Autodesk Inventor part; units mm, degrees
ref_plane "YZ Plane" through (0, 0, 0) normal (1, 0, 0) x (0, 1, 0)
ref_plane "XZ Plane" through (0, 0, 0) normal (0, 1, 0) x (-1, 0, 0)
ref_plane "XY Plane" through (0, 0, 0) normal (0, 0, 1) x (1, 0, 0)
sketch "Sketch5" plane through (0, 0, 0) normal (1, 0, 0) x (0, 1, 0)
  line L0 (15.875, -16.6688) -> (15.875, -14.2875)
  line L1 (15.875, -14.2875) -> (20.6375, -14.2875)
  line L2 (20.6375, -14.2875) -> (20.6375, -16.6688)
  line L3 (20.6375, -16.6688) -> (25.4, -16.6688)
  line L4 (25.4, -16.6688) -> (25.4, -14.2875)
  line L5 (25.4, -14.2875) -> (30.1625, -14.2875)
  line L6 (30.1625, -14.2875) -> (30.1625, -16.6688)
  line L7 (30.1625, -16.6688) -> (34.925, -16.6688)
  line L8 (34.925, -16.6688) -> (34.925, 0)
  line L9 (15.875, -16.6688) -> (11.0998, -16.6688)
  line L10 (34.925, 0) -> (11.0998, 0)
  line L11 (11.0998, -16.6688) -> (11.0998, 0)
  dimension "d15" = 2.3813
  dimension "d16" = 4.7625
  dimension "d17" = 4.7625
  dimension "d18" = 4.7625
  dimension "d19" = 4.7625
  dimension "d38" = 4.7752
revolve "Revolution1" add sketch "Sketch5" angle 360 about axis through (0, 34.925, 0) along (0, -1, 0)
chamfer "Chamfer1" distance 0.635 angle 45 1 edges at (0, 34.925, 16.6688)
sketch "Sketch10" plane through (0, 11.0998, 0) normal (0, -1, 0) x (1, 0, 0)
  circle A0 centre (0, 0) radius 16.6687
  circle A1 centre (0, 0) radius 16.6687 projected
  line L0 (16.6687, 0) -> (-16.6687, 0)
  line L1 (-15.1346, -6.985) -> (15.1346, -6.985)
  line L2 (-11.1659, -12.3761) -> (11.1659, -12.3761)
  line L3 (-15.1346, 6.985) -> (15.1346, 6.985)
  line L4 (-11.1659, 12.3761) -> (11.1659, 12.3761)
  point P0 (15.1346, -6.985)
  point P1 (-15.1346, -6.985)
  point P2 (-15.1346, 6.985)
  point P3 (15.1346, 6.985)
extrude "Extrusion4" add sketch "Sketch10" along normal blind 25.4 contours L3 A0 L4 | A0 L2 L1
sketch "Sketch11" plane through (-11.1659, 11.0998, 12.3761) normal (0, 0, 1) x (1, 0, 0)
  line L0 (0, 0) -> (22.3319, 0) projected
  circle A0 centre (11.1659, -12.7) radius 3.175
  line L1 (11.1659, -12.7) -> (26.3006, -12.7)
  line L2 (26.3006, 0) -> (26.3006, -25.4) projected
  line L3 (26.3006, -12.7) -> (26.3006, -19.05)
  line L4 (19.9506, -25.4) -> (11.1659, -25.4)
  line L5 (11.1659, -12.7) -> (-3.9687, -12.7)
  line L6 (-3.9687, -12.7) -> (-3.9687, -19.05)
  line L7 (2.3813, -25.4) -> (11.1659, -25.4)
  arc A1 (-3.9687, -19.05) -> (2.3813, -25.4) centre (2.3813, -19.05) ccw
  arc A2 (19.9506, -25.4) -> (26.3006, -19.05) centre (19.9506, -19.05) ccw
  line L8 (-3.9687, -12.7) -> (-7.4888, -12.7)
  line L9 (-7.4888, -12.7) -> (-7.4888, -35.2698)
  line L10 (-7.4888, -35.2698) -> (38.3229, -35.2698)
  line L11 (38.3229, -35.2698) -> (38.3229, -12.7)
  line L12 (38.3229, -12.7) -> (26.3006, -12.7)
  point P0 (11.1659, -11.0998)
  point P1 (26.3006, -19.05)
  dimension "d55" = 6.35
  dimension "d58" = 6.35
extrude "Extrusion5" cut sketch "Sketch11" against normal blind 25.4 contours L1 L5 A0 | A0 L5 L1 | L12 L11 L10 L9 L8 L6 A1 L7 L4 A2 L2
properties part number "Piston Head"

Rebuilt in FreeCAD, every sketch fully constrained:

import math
import FreeCAD as App
import Part
import Sketcher
from FreeCAD import Vector
Q = App.Units.Quantity


def edges_at(feature, points):
    """Names of the edges that pass closest to the given points."""
    edges = feature.Shape.Edges
    near = lambda p: min(range(len(edges)), key=lambda i: edges[i].distToShape(Part.Vertex(*p))[0])
    return sorted({f"Edge{near(p) + 1}" for p in points})

doc = App.newDocument("Part")
body = doc.addObject("PartDesign::Body", "Body")

sketch1 = body.newObject("Sketcher::SketchObject", "Sketch")
sketch1.AttachmentSupport = (doc.getObject("YZ_Plane"), [""])
sketch1.MapMode = "FlatFace"
sketch1.addGeometry([
    Part.LineSegment(Vector(11.0998, -16.6688, 0), Vector(15.875, -16.6688, 0)),
    Part.LineSegment(Vector(15.875, -16.6688, 0), Vector(15.875, -14.2875, 0)),
    Part.LineSegment(Vector(15.875, -14.2875, 0), Vector(20.6375, -14.2875, 0)),
    Part.LineSegment(Vector(20.6375, -14.2875, 0), Vector(20.6375, -16.6688, 0)),
    Part.LineSegment(Vector(20.6375, -16.6688, 0), Vector(25.4, -16.6688, 0)),
    Part.LineSegment(Vector(25.4, -16.6688, 0), Vector(25.4, -14.2875, 0)),
    Part.LineSegment(Vector(25.4, -14.2875, 0), Vector(30.1625, -14.2875, 0)),
    Part.LineSegment(Vector(30.1625, -14.2875, 0), Vector(30.1625, -16.6688, 0)),
    Part.LineSegment(Vector(30.1625, -16.6688, 0), Vector(34.925, -16.6688, 0)),
    Part.LineSegment(Vector(34.925, -16.6688, 0), Vector(34.925, 0, 0)),
    Part.LineSegment(Vector(34.925, 0, 0), Vector(11.0998, 0, 0)),
    Part.LineSegment(Vector(11.0998, 0, 0), Vector(11.0998, -16.6688, 0)),
], False)
sketch1.addConstraint([
    Sketcher.Constraint("Coincident", 0, 2, 1, 1),
    Sketcher.Constraint("Coincident", 1, 2, 2, 1),
    Sketcher.Constraint("Coincident", 2, 2, 3, 1),
    Sketcher.Constraint("Coincident", 3, 2, 4, 1),
    Sketcher.Constraint("Coincident", 4, 2, 5, 1),
    Sketcher.Constraint("Coincident", 5, 2, 6, 1),
    Sketcher.Constraint("Coincident", 6, 2, 7, 1),
    Sketcher.Constraint("Coincident", 7, 2, 8, 1),
    Sketcher.Constraint("Coincident", 8, 2, 9, 1),
    Sketcher.Constraint("Coincident", 9, 2, 10, 1),
    Sketcher.Constraint("Coincident", 10, 2, 11, 1),
    Sketcher.Constraint("Coincident", 11, 2, 0, 1),
    Sketcher.Constraint("Horizontal", 0),
    Sketcher.Constraint("Vertical", 1),
    Sketcher.Constraint("Horizontal", 2),
    Sketcher.Constraint("Vertical", 3),
    Sketcher.Constraint("Horizontal", 4),
    Sketcher.Constraint("Vertical", 5),
    Sketcher.Constraint("Horizontal", 6),
    Sketcher.Constraint("Vertical", 7),
    Sketcher.Constraint("Horizontal", 8),
    Sketcher.Constraint("Vertical", 9),
    Sketcher.Constraint("Horizontal", 10),
    Sketcher.Constraint("Vertical", 11),
    Sketcher.Constraint("PointOnObject", 9, 2, -1),
    Sketcher.Constraint("Horizontal", 0, 2, 3, 2),
    Sketcher.Constraint("Horizontal", 2, 2, 5, 2),
    Sketcher.Constraint("Horizontal", 4, 2, 7, 2),
    Sketcher.Constraint("Equal", 2, 4),
    Sketcher.Constraint("Equal", 4, 6),
    Sketcher.Constraint("Equal", 6, 8),
    Sketcher.Constraint("DistanceX", 0, 1, 0, 2, Q("0.188 in")),
    Sketcher.Constraint("DistanceX", 2, 1, 2, 2, Q("0.1875 in")),
    Sketcher.Constraint("DistanceY", 1, 1, 1, 2, Q("0.093752 in")),
    Sketcher.Constraint("DistanceX", -1, 1, 4, 2, Q("1 in")),
    Sketcher.Constraint("DistanceY", 9, 1, 9, 2, Q("0.656252 in")),
])
revolution = body.newObject("PartDesign::Revolution", "Revolution")
revolution.Profile = sketch1
revolution.ReferenceAxis = (sketch1, ["H_Axis"])
revolution.Angle = 360
doc.recompute()

chamfer = body.newObject("PartDesign::Chamfer", "Chamfer")
chamfer.Base = (revolution, edges_at(revolution, [(0, 34.925, 16.669)]))
chamfer.Size = Q("0.025 in")

sketch2 = body.newObject("Sketcher::SketchObject", "Sketch001")
sketch2.AttachmentSupport = (doc.getObject("XZ_Plane"), [""])
sketch2.MapMode = "FlatFace"
sketch2.AttachmentOffset = App.Placement(Vector(0, 0, -0.437 * 25.4), App.Rotation())
sketch2.addGeometry([
    Part.LineSegment(Vector(-15.1346, 6.985, 0), Vector(15.1346, 6.985, 0)),
    Part.ArcOfCircle(Part.Circle(Vector(0, 0, 0), Vector(0, 0, 1), 16.6687), math.radians(24.774516), math.radians(47.942756)),
    Part.LineSegment(Vector(11.1659, 12.3761, 0), Vector(-11.1659, 12.3761, 0)),
    Part.ArcOfCircle(Part.Circle(Vector(0, 0, 0), Vector(0, 0, 1), 16.6687), math.radians(132.057244), math.radians(155.225484)),
    Part.ArcOfCircle(Part.Circle(Vector(0, 0, 0), Vector(0, 0, 1), 16.6687), math.radians(-47.942756), math.radians(-24.774516)),
    Part.LineSegment(Vector(15.1346, -6.985, 0), Vector(-15.1346, -6.985, 0)),
    Part.ArcOfCircle(Part.Circle(Vector(0, 0, 0), Vector(0, 0, 1), 16.6687), math.radians(-155.225484), math.radians(-132.057244)),
    Part.LineSegment(Vector(-11.1659, -12.3761, 0), Vector(11.1659, -12.3761, 0)),
], False)
sketch2.addConstraint([
    Sketcher.Constraint("Coincident", 0, 2, 1, 1),
    Sketcher.Constraint("Coincident", 1, 2, 2, 1),
    Sketcher.Constraint("Coincident", 2, 2, 3, 1),
    Sketcher.Constraint("Coincident", 3, 2, 0, 1),
    Sketcher.Constraint("Coincident", 4, 2, 5, 1),
    Sketcher.Constraint("Coincident", 5, 2, 6, 1),
    Sketcher.Constraint("Coincident", 6, 2, 7, 1),
    Sketcher.Constraint("Coincident", 7, 2, 4, 1),
    Sketcher.Constraint("Horizontal", 0),
    Sketcher.Constraint("Horizontal", 2),
    Sketcher.Constraint("Horizontal", 5),
    Sketcher.Constraint("Horizontal", 7),
    Sketcher.Constraint("Coincident", 1, 3, -1, 1),
    Sketcher.Constraint("Coincident", 3, 3, -1, 1),
    Sketcher.Constraint("Coincident", 4, 3, -1, 1),
    Sketcher.Constraint("Coincident", 6, 3, -1, 1),
    Sketcher.Constraint("Equal", 1, 3),
    Sketcher.Constraint("Equal", 3, 4),
    Sketcher.Constraint("Equal", 4, 6),
    Sketcher.Constraint("Vertical", 0, 2, 4, 2),
    Sketcher.Constraint("Vertical", 2, 2, 6, 2),
    Sketcher.Constraint("Radius", 1, Q("0.656248 in")),
    Sketcher.Constraint("DistanceY", 4, 2, 0, 2, Q("0.55 in")),
    Sketcher.Constraint("DistanceX", 2, 2, 2, 1, Q("0.8792 in")),
])
pad1 = body.newObject("PartDesign::Pad", "Pad")
pad1.Profile = sketch2
pad1.Length = Q("1 in")

sketch3 = body.newObject("Sketcher::SketchObject", "Sketch002")
sketch3.AttachmentSupport = (doc.getObject("XY_Plane"), [""])
sketch3.MapMode = "FlatFace"
sketch3.AttachmentOffset = App.Placement(Vector(0, 0, 12.3761), App.Rotation())
sketch3.addGeometry([
    Part.Circle(Vector(0, -1.6002, 0), Vector(0, 0, 1), 3.175),
    Part.LineSegment(Vector(27.157, -1.6002, 0), Vector(15.1347, -1.6002, 0)),
    Part.LineSegment(Vector(15.1347, -1.6002, 0), Vector(15.1347, -7.9502, 0)),
    Part.ArcOfCircle(Part.Circle(Vector(8.7847, -7.9502, 0), Vector(0, 0, 1), 6.35), math.radians(-90), math.radians(0)),
    Part.LineSegment(Vector(8.7847, -14.3002, 0), Vector(-8.7846, -14.3002, 0)),
    Part.ArcOfCircle(Part.Circle(Vector(-8.7846, -7.9502, 0), Vector(0, 0, 1), 6.35), math.radians(180), math.radians(270)),
    Part.LineSegment(Vector(-15.1346, -7.9502, 0), Vector(-15.1346, -1.6002, 0)),
    Part.LineSegment(Vector(-15.1346, -1.6002, 0), Vector(-18.6547, -1.6002, 0)),
    Part.LineSegment(Vector(-18.6547, -1.6002, 0), Vector(-18.6547, -24.17, 0)),
    Part.LineSegment(Vector(-18.6547, -24.17, 0), Vector(27.157, -24.17, 0)),
    Part.LineSegment(Vector(27.157, -24.17, 0), Vector(27.157, -1.6002, 0)),
], False)
sketch3.addConstraint([
    Sketcher.Constraint("Coincident", 1, 2, 2, 1),
    Sketcher.Constraint("Tangent", 2, 2, 3, 2),
    Sketcher.Constraint("Tangent", 3, 1, 4, 1),
    Sketcher.Constraint("Tangent", 4, 2, 5, 2),
    Sketcher.Constraint("Tangent", 5, 1, 6, 1),
    Sketcher.Constraint("Coincident", 6, 2, 7, 1),
    Sketcher.Constraint("Coincident", 7, 2, 8, 1),
    Sketcher.Constraint("Coincident", 8, 2, 9, 1),
    Sketcher.Constraint("Coincident", 9, 2, 10, 1),
    Sketcher.Constraint("Coincident", 10, 2, 1, 1),
    Sketcher.Constraint("Horizontal", 1),
    Sketcher.Constraint("Vertical", 2),
    Sketcher.Constraint("Horizontal", 4),
    Sketcher.Constraint("Vertical", 6),
    Sketcher.Constraint("Horizontal", 7),
    Sketcher.Constraint("Vertical", 8),
    Sketcher.Constraint("Horizontal", 9),
    Sketcher.Constraint("Vertical", 10),
    Sketcher.Constraint("Equal", 3, 5),
    Sketcher.Constraint("Symmetric", 1, 2, 6, 2, -2),
    Sketcher.Constraint("PointOnObject", 0, 3, -2),
    Sketcher.Constraint("Horizontal", 0, 3, 1, 2),
    Sketcher.Constraint("Diameter", 0, Q("0.25 in")),
    Sketcher.Constraint("Radius", 3, Q("0.25 in")),
    Sketcher.Constraint("DistanceY", 2, 2, 2, 1, Q("0.25 in")),
    Sketcher.Constraint("DistanceX", 4, 2, 4, 1, Q("0.6917 in")),
    Sketcher.Constraint("DistanceX", 9, 1, 9, 2, Q("1.8036 in")),
    Sketcher.Constraint("DistanceY", 0, 3, -1, 1, Q("0.063 in")),
    Sketcher.Constraint("DistanceX", 1, 2, 1, 1, Q("12.0223 mm")),
    Sketcher.Constraint("DistanceY", 8, 2, 8, 1, Q("22.5698 mm")),
])
pocket1 = body.newObject("PartDesign::Pocket", "Pocket")
pocket1.Profile = sketch3
pocket1.Length = Q("1 in")

doc.recompute()
